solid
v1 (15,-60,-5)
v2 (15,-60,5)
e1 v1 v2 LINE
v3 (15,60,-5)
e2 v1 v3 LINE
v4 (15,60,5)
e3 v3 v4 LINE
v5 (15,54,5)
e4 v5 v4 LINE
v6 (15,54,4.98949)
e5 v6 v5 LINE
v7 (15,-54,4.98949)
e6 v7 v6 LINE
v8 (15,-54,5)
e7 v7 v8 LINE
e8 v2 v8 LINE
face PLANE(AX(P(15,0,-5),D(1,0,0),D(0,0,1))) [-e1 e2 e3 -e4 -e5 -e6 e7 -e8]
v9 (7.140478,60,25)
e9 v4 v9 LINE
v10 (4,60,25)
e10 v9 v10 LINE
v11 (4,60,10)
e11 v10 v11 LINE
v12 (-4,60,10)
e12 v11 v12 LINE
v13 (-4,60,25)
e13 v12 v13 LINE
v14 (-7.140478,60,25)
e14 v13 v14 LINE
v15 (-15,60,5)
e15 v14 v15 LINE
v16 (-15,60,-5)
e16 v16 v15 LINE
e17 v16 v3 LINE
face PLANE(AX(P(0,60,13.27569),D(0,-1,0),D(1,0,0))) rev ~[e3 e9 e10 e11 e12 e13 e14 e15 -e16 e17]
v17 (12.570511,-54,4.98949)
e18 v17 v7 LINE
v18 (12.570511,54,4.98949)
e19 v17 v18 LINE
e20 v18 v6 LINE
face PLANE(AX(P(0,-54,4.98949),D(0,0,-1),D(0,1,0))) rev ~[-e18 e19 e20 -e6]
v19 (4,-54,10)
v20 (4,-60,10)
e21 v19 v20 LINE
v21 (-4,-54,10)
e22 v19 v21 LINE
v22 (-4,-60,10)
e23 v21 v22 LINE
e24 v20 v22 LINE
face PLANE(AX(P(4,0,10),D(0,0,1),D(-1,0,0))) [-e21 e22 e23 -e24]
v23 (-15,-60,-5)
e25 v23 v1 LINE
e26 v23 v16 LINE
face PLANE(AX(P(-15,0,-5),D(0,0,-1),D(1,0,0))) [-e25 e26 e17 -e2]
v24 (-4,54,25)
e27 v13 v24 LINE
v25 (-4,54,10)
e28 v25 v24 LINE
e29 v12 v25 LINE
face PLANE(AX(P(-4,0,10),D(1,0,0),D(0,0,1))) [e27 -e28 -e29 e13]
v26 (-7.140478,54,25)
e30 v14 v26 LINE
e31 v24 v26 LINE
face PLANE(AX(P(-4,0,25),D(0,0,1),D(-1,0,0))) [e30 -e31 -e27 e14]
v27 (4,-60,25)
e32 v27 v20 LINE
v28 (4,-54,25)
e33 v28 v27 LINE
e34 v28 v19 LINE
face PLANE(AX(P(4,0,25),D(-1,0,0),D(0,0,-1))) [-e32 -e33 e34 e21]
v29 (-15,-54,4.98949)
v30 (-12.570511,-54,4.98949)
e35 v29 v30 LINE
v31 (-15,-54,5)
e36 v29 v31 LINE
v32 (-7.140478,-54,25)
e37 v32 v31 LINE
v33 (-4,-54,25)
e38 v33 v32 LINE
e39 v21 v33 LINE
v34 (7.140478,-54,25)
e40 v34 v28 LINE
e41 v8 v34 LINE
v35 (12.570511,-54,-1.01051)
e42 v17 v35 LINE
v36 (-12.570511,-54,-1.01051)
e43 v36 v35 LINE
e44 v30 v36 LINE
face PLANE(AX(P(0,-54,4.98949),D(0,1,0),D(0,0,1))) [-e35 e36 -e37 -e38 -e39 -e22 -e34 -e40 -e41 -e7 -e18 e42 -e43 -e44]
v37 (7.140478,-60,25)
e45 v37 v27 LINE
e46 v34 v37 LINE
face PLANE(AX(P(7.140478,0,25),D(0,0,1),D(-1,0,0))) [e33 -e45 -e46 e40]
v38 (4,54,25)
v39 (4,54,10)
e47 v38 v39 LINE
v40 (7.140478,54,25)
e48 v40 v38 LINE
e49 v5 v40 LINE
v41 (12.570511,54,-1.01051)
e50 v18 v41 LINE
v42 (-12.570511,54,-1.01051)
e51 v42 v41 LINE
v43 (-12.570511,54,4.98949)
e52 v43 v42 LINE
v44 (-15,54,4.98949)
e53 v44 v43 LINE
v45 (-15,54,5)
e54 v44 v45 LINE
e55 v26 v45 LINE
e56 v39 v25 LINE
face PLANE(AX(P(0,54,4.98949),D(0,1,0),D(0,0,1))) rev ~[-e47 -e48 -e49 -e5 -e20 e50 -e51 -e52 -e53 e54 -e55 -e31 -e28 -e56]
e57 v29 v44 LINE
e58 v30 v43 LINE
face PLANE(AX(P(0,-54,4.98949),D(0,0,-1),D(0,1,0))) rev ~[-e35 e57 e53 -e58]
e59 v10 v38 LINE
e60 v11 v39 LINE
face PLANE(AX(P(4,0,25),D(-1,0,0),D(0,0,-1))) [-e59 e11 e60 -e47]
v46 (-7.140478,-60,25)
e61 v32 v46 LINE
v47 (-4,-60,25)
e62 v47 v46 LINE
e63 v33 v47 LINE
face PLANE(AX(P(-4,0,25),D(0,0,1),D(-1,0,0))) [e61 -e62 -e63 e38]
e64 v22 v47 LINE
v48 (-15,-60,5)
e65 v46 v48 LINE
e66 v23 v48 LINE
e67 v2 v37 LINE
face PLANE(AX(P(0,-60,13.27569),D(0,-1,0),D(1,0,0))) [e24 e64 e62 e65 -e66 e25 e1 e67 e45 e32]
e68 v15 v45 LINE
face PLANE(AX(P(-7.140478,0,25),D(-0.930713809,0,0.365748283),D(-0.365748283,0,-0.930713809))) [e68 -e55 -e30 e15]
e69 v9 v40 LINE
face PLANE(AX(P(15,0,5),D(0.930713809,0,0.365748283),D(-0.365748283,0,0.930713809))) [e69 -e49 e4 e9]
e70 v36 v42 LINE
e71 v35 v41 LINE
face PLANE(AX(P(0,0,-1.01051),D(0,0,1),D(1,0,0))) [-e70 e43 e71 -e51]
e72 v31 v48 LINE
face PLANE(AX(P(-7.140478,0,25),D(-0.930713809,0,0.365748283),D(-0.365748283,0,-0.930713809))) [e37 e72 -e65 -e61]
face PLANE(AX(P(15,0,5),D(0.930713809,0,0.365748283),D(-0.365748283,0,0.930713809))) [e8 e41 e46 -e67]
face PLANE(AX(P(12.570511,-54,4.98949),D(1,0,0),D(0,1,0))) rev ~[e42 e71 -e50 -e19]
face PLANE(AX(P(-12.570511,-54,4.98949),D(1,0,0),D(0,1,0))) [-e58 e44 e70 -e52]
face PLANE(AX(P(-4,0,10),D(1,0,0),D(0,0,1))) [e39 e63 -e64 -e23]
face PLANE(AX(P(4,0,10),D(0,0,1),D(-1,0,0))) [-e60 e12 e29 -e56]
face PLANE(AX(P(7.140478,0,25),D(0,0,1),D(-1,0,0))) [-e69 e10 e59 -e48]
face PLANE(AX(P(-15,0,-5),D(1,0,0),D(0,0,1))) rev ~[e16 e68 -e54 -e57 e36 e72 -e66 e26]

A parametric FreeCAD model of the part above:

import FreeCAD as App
import Part
import Sketcher
from FreeCAD import Vector

doc = App.newDocument("Part")
body = doc.addObject("PartDesign::Body", "Body")

# Sketch on XZ plane
sketch1 = body.newObject("Sketcher::SketchObject", "Sketch")
sketch1.AttachmentSupport = (doc.getObject("XZ_Plane"), [""])
sketch1.MapMode = "FlatFace"
sketch1.addGeometry(Part.LineSegment(Vector(15, 5, 0), Vector(7.1, 25, 0)), False)
sketch1.addGeometry(Part.LineSegment(Vector(7.1, 25, 0), Vector(4, 25, 0)), False)
sketch1.addGeometry(Part.LineSegment(Vector(4, 25, 0), Vector(4, 10, 0)), False)
sketch1.addGeometry(Part.LineSegment(Vector(4, 10, 0), Vector(-4, 10, 0)), False)
sketch1.addGeometry(Part.LineSegment(Vector(-4, 10, 0), Vector(-4, 25, 0)), False)
sketch1.addGeometry(Part.LineSegment(Vector(-4, 25, 0), Vector(-7.1, 25, 0)), False)
sketch1.addGeometry(Part.LineSegment(Vector(-7.1, 25, 0), Vector(-15, 5, 0)), False)
sketch1.addGeometry(Part.LineSegment(Vector(-15, 5, 0), Vector(-15, -5, 0)), False)
sketch1.addGeometry(Part.LineSegment(Vector(-15, -5, 0), Vector(15, -5, 0)), False)
sketch1.addGeometry(Part.LineSegment(Vector(15, -5, 0), Vector(15, 5, 0)), False)
sketch1.addConstraint(Sketcher.Constraint("Coincident", 0, 2, 1, 1))
sketch1.addConstraint(Sketcher.Constraint("Coincident", 1, 2, 2, 1))
sketch1.addConstraint(Sketcher.Constraint("Coincident", 2, 2, 3, 1))
sketch1.addConstraint(Sketcher.Constraint("Coincident", 3, 2, 4, 1))
sketch1.addConstraint(Sketcher.Constraint("Coincident", 4, 2, 5, 1))
sketch1.addConstraint(Sketcher.Constraint("Coincident", 5, 2, 6, 1))
sketch1.addConstraint(Sketcher.Constraint("Coincident", 6, 2, 7, 1))
sketch1.addConstraint(Sketcher.Constraint("Coincident", 7, 2, 8, 1))
sketch1.addConstraint(Sketcher.Constraint("Coincident", 8, 2, 9, 1))
sketch1.addConstraint(Sketcher.Constraint("Coincident", 9, 2, 0, 1))
sketch1.addConstraint(Sketcher.Constraint("Horizontal", 1))
sketch1.addConstraint(Sketcher.Constraint("Vertical", 2))
sketch1.addConstraint(Sketcher.Constraint("Horizontal", 3))
sketch1.addConstraint(Sketcher.Constraint("Vertical", 4))
sketch1.addConstraint(Sketcher.Constraint("Horizontal", 5))
sketch1.addConstraint(Sketcher.Constraint("Vertical", 7))
sketch1.addConstraint(Sketcher.Constraint("Horizontal", 8))
sketch1.addConstraint(Sketcher.Constraint("Vertical", 9))
sketch1.addConstraint(Sketcher.Constraint("Symmetric", 6, 2, 8, 2, -1, 1))
sketch1.addConstraint(Sketcher.Constraint("Symmetric", 1, 2, 4, 2, -2))
sketch1.addConstraint(Sketcher.Constraint("Horizontal", 6, 2, 9, 2))
sketch1.addConstraint(Sketcher.Constraint("Equal", 1, 5))
sketch1.addConstraint(Sketcher.Constraint("DistanceX", 3, 2, 3, 1, 8.0))
sketch1.addConstraint(Sketcher.Constraint("DistanceX", 8, 1, 8, 2, 30.0))
sketch1.addConstraint(Sketcher.Constraint("DistanceY", 2, 2, 2, 1, 15.0))
sketch1.addConstraint(Sketcher.Constraint("DistanceY", 7, 2, 7, 1, 10.0))
sketch1.addConstraint(Sketcher.Constraint("DistanceY", -1, 1, 0, 2, 25.0))
sketch1.addConstraint(Sketcher.Constraint("DistanceX", 1, 2, 1, 1, 3.140478))
pad1 = body.newObject("PartDesign::Pad", "Pad")
pad1.Profile = sketch1
pad1.Length = 120
pad1.Midplane = True

# Sketch on YZ plane
sketch2 = body.newObject("Sketcher::SketchObject", "Sketch001")
sketch2.AttachmentSupport = (doc.getObject("YZ_Plane"), [""])
sketch2.MapMode = "FlatFace"
sketch2.addGeometry(Part.LineSegment(Vector(-54, 45, 0), Vector(-54, 5, 0)), False)
sketch2.addGeometry(Part.LineSegment(Vector(-54, 5, 0), Vector(54, 5, 0)), False)
sketch2.addGeometry(Part.LineSegment(Vector(54, 5, 0), Vector(54, 45, 0)), False)
sketch2.addGeometry(Part.LineSegment(Vector(54, 45, 0), Vector(-54, 45, 0)), False)
sketch2.addConstraint(Sketcher.Constraint("Coincident", 0, 2, 1, 1))
sketch2.addConstraint(Sketcher.Constraint("Coincident", 1, 2, 2, 1))
sketch2.addConstraint(Sketcher.Constraint("Coincident", 2, 2, 3, 1))
sketch2.addConstraint(Sketcher.Constraint("Coincident", 3, 2, 0, 1))
sketch2.addConstraint(Sketcher.Constraint("Vertical", 0))
sketch2.addConstraint(Sketcher.Constraint("Horizontal", 1))
sketch2.addConstraint(Sketcher.Constraint("Vertical", 2))
sketch2.addConstraint(Sketcher.Constraint("Horizontal", 3))
sketch2.addConstraint(Sketcher.Constraint("DistanceX", 1, 1, 1, 2, 108.0))
sketch2.addConstraint(Sketcher.Constraint("DistanceX", 0, 2, -1, 1, 54.0))
sketch2.addConstraint(Sketcher.Constraint("DistanceY", 0, 2, 0, 1, 39.921402))
sketch2.addConstraint(Sketcher.Constraint("DistanceY", -1, 1, 0, 2, 4.98949))
pocket1 = body.newObject("PartDesign::Pocket", "Pocket")
pocket1.Profile = sketch2
pocket1.Length = 300
pocket1.Midplane = True

# Sketch on XY plane
sketch3 = body.newObject("Sketcher::SketchObject", "Sketch002")
sketch3.AttachmentSupport = (doc.getObject("XY_Plane"), [""])
sketch3.MapMode = "FlatFace"
sketch3.AttachmentOffset = App.Placement(Vector(0, 0, 4.98949), App.Rotation())
sketch3.addGeometry(Part.LineSegment(Vector(-13, 54, 0), Vector(-13, -54, 0)), False)
sketch3.addGeometry(Part.LineSegment(Vector(-13, -54, 0), Vector(13, -54, 0)), False)
sketch3.addGeometry(Part.LineSegment(Vector(13, -54, 0), Vector(13, 54, 0)), False)
sketch3.addGeometry(Part.LineSegment(Vector(13, 54, 0), Vector(-13, 54, 0)), False)
sketch3.addConstraint(Sketcher.Constraint("Coincident", 0, 2, 1, 1))
sketch3.addConstraint(Sketcher.Constraint("Coincident", 1, 2, 2, 1))
sketch3.addConstraint(Sketcher.Constraint("Coincident", 2, 2, 3, 1))
sketch3.addConstraint(Sketcher.Constraint("Coincident", 3, 2, 0, 1))
sketch3.addConstraint(Sketcher.Constraint("Vertical", 0))
sketch3.addConstraint(Sketcher.Constraint("Horizontal", 1))
sketch3.addConstraint(Sketcher.Constraint("Vertical", 2))
sketch3.addConstraint(Sketcher.Constraint("Horizontal", 3))
sketch3.addConstraint(Sketcher.Constraint("Symmetric", 0, 2, 2, 2, -1, 1))
sketch3.addConstraint(Sketcher.Constraint("DistanceY", 0, 2, 0, 1, 108.0))
sketch3.addConstraint(Sketcher.Constraint("DistanceX", 1, 1, 1, 2, 25.141022))
pocket2 = body.newObject("PartDesign::Pocket", "Pocket001")
pocket2.Profile = sketch3
pocket2.Length = 6

doc.recompute()
